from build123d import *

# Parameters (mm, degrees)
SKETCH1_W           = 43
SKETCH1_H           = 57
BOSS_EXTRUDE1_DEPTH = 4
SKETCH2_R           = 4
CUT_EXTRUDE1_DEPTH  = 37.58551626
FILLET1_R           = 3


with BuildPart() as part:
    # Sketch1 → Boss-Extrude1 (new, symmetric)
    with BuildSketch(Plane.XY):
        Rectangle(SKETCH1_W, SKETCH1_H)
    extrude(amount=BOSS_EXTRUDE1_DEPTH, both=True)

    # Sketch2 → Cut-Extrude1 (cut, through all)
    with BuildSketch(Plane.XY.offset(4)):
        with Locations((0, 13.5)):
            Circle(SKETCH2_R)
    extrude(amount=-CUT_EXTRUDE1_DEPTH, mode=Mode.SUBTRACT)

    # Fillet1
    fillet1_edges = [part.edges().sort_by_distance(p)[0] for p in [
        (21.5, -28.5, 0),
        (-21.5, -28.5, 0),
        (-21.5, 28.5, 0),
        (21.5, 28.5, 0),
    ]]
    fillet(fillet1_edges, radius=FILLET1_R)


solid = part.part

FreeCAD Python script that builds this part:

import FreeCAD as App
import Part
import Sketcher
from FreeCAD import Vector
Q = App.Units.Quantity


def edges_at(feature, points):
    """Names of the edges that pass closest to the given points."""
    edges = feature.Shape.Edges
    near = lambda p: min(range(len(edges)), key=lambda i: edges[i].distToShape(Part.Vertex(*p))[0])
    return sorted({f"Edge{near(p) + 1}" for p in points})


def add_polygon(sketch, points):
    """Adds a closed chain of lines whose ends are joined by coincident constraints."""
    first, n = sketch.GeometryCount, len(points)
    for a, b in zip(points, points[1:] + points[:1]):
        sketch.addGeometry(Part.LineSegment(App.Vector(*a, 0), App.Vector(*b, 0)), False)
    for i in range(n):
        sketch.addConstraint(Sketcher.Constraint("Coincident", first + i, 2, first + (i + 1) % n, 1))

doc = App.newDocument("Part")
params = doc.addObject("Spreadsheet::Sheet", "Params")
for row, (alias, value) in enumerate([
    ("sketch1_width", "43 mm"),
    ("sketch1_height", "57 mm"),
    ("pad1_length", "8 mm"),
    ("sketch2_diameter", "8 mm"),
    ("fillet_radius", "3 mm"),
], start=1):
    params.set(f"A{row}", alias)
    params.set(f"B{row}", "=" + value)
    params.setAlias(f"B{row}", alias)

body = doc.addObject("PartDesign::Body", "Body")

sketch1 = body.newObject("Sketcher::SketchObject", "Sketch")
sketch1.AttachmentSupport = (doc.getObject("XY_Plane"), [""])
sketch1.MapMode = "FlatFace"
add_polygon(sketch1, [(-21.5, 28.5), (-21.5, -28.5), (21.5, -28.5), (21.5, 28.5)])
sketch1.addConstraint([
    Sketcher.Constraint("Vertical", 0),
    Sketcher.Constraint("Horizontal", 1),
    Sketcher.Constraint("Vertical", 2),
    Sketcher.Constraint("Horizontal", 3),
    Sketcher.Constraint("Symmetric", 0, 2, 2, 2, -1, 1),
    Sketcher.Constraint("DistanceX", 1, 1, 1, 2, Q("43 mm")),
    Sketcher.Constraint("DistanceY", 0, 2, 0, 1, Q("57 mm")),
])
sketch1.setExpression("Constraints[9]", "Params.sketch1_width")
sketch1.setExpression("Constraints[10]", "Params.sketch1_height")
pad1 = body.newObject("PartDesign::Pad", "Pad")
pad1.Profile = sketch1
pad1.setExpression("Length", "Params.pad1_length")
pad1.Midplane = True

sketch2 = body.newObject("Sketcher::SketchObject", "Sketch001")
sketch2.AttachmentSupport = (doc.getObject("XY_Plane"), [""])
sketch2.MapMode = "FlatFace"
sketch2.AttachmentOffset = App.Placement(Vector(0, 0, 4), App.Rotation())
sketch2.addGeometry(Part.Circle(Vector(0, 13.5, 0), Vector(0, 0, 1), 4), False)
sketch2.addConstraint([
    Sketcher.Constraint("PointOnObject", 0, 3, -2),
    Sketcher.Constraint("Diameter", 0, Q("8 mm")),
    Sketcher.Constraint("DistanceY", -1, 1, 0, 3, Q("13.5 mm")),
])
sketch2.setExpression("Constraints[1]", "Params.sketch2_diameter")
pocket1 = body.newObject("PartDesign::Pocket", "Pocket")
pocket1.Profile = sketch2
pocket1.Type = "ThroughAll"
doc.recompute()

fillet = body.newObject("PartDesign::Fillet", "Fillet")
fillet.Base = (pocket1, edges_at(pocket1, [
    (21.5, -28.5, 0),
    (-21.5, -28.5, 0),
    (-21.5, 28.5, 0),
    (21.5, 28.5, 0),
]))
fillet.setExpression("Radius", "Params.fillet_radius")

doc.recompute()
